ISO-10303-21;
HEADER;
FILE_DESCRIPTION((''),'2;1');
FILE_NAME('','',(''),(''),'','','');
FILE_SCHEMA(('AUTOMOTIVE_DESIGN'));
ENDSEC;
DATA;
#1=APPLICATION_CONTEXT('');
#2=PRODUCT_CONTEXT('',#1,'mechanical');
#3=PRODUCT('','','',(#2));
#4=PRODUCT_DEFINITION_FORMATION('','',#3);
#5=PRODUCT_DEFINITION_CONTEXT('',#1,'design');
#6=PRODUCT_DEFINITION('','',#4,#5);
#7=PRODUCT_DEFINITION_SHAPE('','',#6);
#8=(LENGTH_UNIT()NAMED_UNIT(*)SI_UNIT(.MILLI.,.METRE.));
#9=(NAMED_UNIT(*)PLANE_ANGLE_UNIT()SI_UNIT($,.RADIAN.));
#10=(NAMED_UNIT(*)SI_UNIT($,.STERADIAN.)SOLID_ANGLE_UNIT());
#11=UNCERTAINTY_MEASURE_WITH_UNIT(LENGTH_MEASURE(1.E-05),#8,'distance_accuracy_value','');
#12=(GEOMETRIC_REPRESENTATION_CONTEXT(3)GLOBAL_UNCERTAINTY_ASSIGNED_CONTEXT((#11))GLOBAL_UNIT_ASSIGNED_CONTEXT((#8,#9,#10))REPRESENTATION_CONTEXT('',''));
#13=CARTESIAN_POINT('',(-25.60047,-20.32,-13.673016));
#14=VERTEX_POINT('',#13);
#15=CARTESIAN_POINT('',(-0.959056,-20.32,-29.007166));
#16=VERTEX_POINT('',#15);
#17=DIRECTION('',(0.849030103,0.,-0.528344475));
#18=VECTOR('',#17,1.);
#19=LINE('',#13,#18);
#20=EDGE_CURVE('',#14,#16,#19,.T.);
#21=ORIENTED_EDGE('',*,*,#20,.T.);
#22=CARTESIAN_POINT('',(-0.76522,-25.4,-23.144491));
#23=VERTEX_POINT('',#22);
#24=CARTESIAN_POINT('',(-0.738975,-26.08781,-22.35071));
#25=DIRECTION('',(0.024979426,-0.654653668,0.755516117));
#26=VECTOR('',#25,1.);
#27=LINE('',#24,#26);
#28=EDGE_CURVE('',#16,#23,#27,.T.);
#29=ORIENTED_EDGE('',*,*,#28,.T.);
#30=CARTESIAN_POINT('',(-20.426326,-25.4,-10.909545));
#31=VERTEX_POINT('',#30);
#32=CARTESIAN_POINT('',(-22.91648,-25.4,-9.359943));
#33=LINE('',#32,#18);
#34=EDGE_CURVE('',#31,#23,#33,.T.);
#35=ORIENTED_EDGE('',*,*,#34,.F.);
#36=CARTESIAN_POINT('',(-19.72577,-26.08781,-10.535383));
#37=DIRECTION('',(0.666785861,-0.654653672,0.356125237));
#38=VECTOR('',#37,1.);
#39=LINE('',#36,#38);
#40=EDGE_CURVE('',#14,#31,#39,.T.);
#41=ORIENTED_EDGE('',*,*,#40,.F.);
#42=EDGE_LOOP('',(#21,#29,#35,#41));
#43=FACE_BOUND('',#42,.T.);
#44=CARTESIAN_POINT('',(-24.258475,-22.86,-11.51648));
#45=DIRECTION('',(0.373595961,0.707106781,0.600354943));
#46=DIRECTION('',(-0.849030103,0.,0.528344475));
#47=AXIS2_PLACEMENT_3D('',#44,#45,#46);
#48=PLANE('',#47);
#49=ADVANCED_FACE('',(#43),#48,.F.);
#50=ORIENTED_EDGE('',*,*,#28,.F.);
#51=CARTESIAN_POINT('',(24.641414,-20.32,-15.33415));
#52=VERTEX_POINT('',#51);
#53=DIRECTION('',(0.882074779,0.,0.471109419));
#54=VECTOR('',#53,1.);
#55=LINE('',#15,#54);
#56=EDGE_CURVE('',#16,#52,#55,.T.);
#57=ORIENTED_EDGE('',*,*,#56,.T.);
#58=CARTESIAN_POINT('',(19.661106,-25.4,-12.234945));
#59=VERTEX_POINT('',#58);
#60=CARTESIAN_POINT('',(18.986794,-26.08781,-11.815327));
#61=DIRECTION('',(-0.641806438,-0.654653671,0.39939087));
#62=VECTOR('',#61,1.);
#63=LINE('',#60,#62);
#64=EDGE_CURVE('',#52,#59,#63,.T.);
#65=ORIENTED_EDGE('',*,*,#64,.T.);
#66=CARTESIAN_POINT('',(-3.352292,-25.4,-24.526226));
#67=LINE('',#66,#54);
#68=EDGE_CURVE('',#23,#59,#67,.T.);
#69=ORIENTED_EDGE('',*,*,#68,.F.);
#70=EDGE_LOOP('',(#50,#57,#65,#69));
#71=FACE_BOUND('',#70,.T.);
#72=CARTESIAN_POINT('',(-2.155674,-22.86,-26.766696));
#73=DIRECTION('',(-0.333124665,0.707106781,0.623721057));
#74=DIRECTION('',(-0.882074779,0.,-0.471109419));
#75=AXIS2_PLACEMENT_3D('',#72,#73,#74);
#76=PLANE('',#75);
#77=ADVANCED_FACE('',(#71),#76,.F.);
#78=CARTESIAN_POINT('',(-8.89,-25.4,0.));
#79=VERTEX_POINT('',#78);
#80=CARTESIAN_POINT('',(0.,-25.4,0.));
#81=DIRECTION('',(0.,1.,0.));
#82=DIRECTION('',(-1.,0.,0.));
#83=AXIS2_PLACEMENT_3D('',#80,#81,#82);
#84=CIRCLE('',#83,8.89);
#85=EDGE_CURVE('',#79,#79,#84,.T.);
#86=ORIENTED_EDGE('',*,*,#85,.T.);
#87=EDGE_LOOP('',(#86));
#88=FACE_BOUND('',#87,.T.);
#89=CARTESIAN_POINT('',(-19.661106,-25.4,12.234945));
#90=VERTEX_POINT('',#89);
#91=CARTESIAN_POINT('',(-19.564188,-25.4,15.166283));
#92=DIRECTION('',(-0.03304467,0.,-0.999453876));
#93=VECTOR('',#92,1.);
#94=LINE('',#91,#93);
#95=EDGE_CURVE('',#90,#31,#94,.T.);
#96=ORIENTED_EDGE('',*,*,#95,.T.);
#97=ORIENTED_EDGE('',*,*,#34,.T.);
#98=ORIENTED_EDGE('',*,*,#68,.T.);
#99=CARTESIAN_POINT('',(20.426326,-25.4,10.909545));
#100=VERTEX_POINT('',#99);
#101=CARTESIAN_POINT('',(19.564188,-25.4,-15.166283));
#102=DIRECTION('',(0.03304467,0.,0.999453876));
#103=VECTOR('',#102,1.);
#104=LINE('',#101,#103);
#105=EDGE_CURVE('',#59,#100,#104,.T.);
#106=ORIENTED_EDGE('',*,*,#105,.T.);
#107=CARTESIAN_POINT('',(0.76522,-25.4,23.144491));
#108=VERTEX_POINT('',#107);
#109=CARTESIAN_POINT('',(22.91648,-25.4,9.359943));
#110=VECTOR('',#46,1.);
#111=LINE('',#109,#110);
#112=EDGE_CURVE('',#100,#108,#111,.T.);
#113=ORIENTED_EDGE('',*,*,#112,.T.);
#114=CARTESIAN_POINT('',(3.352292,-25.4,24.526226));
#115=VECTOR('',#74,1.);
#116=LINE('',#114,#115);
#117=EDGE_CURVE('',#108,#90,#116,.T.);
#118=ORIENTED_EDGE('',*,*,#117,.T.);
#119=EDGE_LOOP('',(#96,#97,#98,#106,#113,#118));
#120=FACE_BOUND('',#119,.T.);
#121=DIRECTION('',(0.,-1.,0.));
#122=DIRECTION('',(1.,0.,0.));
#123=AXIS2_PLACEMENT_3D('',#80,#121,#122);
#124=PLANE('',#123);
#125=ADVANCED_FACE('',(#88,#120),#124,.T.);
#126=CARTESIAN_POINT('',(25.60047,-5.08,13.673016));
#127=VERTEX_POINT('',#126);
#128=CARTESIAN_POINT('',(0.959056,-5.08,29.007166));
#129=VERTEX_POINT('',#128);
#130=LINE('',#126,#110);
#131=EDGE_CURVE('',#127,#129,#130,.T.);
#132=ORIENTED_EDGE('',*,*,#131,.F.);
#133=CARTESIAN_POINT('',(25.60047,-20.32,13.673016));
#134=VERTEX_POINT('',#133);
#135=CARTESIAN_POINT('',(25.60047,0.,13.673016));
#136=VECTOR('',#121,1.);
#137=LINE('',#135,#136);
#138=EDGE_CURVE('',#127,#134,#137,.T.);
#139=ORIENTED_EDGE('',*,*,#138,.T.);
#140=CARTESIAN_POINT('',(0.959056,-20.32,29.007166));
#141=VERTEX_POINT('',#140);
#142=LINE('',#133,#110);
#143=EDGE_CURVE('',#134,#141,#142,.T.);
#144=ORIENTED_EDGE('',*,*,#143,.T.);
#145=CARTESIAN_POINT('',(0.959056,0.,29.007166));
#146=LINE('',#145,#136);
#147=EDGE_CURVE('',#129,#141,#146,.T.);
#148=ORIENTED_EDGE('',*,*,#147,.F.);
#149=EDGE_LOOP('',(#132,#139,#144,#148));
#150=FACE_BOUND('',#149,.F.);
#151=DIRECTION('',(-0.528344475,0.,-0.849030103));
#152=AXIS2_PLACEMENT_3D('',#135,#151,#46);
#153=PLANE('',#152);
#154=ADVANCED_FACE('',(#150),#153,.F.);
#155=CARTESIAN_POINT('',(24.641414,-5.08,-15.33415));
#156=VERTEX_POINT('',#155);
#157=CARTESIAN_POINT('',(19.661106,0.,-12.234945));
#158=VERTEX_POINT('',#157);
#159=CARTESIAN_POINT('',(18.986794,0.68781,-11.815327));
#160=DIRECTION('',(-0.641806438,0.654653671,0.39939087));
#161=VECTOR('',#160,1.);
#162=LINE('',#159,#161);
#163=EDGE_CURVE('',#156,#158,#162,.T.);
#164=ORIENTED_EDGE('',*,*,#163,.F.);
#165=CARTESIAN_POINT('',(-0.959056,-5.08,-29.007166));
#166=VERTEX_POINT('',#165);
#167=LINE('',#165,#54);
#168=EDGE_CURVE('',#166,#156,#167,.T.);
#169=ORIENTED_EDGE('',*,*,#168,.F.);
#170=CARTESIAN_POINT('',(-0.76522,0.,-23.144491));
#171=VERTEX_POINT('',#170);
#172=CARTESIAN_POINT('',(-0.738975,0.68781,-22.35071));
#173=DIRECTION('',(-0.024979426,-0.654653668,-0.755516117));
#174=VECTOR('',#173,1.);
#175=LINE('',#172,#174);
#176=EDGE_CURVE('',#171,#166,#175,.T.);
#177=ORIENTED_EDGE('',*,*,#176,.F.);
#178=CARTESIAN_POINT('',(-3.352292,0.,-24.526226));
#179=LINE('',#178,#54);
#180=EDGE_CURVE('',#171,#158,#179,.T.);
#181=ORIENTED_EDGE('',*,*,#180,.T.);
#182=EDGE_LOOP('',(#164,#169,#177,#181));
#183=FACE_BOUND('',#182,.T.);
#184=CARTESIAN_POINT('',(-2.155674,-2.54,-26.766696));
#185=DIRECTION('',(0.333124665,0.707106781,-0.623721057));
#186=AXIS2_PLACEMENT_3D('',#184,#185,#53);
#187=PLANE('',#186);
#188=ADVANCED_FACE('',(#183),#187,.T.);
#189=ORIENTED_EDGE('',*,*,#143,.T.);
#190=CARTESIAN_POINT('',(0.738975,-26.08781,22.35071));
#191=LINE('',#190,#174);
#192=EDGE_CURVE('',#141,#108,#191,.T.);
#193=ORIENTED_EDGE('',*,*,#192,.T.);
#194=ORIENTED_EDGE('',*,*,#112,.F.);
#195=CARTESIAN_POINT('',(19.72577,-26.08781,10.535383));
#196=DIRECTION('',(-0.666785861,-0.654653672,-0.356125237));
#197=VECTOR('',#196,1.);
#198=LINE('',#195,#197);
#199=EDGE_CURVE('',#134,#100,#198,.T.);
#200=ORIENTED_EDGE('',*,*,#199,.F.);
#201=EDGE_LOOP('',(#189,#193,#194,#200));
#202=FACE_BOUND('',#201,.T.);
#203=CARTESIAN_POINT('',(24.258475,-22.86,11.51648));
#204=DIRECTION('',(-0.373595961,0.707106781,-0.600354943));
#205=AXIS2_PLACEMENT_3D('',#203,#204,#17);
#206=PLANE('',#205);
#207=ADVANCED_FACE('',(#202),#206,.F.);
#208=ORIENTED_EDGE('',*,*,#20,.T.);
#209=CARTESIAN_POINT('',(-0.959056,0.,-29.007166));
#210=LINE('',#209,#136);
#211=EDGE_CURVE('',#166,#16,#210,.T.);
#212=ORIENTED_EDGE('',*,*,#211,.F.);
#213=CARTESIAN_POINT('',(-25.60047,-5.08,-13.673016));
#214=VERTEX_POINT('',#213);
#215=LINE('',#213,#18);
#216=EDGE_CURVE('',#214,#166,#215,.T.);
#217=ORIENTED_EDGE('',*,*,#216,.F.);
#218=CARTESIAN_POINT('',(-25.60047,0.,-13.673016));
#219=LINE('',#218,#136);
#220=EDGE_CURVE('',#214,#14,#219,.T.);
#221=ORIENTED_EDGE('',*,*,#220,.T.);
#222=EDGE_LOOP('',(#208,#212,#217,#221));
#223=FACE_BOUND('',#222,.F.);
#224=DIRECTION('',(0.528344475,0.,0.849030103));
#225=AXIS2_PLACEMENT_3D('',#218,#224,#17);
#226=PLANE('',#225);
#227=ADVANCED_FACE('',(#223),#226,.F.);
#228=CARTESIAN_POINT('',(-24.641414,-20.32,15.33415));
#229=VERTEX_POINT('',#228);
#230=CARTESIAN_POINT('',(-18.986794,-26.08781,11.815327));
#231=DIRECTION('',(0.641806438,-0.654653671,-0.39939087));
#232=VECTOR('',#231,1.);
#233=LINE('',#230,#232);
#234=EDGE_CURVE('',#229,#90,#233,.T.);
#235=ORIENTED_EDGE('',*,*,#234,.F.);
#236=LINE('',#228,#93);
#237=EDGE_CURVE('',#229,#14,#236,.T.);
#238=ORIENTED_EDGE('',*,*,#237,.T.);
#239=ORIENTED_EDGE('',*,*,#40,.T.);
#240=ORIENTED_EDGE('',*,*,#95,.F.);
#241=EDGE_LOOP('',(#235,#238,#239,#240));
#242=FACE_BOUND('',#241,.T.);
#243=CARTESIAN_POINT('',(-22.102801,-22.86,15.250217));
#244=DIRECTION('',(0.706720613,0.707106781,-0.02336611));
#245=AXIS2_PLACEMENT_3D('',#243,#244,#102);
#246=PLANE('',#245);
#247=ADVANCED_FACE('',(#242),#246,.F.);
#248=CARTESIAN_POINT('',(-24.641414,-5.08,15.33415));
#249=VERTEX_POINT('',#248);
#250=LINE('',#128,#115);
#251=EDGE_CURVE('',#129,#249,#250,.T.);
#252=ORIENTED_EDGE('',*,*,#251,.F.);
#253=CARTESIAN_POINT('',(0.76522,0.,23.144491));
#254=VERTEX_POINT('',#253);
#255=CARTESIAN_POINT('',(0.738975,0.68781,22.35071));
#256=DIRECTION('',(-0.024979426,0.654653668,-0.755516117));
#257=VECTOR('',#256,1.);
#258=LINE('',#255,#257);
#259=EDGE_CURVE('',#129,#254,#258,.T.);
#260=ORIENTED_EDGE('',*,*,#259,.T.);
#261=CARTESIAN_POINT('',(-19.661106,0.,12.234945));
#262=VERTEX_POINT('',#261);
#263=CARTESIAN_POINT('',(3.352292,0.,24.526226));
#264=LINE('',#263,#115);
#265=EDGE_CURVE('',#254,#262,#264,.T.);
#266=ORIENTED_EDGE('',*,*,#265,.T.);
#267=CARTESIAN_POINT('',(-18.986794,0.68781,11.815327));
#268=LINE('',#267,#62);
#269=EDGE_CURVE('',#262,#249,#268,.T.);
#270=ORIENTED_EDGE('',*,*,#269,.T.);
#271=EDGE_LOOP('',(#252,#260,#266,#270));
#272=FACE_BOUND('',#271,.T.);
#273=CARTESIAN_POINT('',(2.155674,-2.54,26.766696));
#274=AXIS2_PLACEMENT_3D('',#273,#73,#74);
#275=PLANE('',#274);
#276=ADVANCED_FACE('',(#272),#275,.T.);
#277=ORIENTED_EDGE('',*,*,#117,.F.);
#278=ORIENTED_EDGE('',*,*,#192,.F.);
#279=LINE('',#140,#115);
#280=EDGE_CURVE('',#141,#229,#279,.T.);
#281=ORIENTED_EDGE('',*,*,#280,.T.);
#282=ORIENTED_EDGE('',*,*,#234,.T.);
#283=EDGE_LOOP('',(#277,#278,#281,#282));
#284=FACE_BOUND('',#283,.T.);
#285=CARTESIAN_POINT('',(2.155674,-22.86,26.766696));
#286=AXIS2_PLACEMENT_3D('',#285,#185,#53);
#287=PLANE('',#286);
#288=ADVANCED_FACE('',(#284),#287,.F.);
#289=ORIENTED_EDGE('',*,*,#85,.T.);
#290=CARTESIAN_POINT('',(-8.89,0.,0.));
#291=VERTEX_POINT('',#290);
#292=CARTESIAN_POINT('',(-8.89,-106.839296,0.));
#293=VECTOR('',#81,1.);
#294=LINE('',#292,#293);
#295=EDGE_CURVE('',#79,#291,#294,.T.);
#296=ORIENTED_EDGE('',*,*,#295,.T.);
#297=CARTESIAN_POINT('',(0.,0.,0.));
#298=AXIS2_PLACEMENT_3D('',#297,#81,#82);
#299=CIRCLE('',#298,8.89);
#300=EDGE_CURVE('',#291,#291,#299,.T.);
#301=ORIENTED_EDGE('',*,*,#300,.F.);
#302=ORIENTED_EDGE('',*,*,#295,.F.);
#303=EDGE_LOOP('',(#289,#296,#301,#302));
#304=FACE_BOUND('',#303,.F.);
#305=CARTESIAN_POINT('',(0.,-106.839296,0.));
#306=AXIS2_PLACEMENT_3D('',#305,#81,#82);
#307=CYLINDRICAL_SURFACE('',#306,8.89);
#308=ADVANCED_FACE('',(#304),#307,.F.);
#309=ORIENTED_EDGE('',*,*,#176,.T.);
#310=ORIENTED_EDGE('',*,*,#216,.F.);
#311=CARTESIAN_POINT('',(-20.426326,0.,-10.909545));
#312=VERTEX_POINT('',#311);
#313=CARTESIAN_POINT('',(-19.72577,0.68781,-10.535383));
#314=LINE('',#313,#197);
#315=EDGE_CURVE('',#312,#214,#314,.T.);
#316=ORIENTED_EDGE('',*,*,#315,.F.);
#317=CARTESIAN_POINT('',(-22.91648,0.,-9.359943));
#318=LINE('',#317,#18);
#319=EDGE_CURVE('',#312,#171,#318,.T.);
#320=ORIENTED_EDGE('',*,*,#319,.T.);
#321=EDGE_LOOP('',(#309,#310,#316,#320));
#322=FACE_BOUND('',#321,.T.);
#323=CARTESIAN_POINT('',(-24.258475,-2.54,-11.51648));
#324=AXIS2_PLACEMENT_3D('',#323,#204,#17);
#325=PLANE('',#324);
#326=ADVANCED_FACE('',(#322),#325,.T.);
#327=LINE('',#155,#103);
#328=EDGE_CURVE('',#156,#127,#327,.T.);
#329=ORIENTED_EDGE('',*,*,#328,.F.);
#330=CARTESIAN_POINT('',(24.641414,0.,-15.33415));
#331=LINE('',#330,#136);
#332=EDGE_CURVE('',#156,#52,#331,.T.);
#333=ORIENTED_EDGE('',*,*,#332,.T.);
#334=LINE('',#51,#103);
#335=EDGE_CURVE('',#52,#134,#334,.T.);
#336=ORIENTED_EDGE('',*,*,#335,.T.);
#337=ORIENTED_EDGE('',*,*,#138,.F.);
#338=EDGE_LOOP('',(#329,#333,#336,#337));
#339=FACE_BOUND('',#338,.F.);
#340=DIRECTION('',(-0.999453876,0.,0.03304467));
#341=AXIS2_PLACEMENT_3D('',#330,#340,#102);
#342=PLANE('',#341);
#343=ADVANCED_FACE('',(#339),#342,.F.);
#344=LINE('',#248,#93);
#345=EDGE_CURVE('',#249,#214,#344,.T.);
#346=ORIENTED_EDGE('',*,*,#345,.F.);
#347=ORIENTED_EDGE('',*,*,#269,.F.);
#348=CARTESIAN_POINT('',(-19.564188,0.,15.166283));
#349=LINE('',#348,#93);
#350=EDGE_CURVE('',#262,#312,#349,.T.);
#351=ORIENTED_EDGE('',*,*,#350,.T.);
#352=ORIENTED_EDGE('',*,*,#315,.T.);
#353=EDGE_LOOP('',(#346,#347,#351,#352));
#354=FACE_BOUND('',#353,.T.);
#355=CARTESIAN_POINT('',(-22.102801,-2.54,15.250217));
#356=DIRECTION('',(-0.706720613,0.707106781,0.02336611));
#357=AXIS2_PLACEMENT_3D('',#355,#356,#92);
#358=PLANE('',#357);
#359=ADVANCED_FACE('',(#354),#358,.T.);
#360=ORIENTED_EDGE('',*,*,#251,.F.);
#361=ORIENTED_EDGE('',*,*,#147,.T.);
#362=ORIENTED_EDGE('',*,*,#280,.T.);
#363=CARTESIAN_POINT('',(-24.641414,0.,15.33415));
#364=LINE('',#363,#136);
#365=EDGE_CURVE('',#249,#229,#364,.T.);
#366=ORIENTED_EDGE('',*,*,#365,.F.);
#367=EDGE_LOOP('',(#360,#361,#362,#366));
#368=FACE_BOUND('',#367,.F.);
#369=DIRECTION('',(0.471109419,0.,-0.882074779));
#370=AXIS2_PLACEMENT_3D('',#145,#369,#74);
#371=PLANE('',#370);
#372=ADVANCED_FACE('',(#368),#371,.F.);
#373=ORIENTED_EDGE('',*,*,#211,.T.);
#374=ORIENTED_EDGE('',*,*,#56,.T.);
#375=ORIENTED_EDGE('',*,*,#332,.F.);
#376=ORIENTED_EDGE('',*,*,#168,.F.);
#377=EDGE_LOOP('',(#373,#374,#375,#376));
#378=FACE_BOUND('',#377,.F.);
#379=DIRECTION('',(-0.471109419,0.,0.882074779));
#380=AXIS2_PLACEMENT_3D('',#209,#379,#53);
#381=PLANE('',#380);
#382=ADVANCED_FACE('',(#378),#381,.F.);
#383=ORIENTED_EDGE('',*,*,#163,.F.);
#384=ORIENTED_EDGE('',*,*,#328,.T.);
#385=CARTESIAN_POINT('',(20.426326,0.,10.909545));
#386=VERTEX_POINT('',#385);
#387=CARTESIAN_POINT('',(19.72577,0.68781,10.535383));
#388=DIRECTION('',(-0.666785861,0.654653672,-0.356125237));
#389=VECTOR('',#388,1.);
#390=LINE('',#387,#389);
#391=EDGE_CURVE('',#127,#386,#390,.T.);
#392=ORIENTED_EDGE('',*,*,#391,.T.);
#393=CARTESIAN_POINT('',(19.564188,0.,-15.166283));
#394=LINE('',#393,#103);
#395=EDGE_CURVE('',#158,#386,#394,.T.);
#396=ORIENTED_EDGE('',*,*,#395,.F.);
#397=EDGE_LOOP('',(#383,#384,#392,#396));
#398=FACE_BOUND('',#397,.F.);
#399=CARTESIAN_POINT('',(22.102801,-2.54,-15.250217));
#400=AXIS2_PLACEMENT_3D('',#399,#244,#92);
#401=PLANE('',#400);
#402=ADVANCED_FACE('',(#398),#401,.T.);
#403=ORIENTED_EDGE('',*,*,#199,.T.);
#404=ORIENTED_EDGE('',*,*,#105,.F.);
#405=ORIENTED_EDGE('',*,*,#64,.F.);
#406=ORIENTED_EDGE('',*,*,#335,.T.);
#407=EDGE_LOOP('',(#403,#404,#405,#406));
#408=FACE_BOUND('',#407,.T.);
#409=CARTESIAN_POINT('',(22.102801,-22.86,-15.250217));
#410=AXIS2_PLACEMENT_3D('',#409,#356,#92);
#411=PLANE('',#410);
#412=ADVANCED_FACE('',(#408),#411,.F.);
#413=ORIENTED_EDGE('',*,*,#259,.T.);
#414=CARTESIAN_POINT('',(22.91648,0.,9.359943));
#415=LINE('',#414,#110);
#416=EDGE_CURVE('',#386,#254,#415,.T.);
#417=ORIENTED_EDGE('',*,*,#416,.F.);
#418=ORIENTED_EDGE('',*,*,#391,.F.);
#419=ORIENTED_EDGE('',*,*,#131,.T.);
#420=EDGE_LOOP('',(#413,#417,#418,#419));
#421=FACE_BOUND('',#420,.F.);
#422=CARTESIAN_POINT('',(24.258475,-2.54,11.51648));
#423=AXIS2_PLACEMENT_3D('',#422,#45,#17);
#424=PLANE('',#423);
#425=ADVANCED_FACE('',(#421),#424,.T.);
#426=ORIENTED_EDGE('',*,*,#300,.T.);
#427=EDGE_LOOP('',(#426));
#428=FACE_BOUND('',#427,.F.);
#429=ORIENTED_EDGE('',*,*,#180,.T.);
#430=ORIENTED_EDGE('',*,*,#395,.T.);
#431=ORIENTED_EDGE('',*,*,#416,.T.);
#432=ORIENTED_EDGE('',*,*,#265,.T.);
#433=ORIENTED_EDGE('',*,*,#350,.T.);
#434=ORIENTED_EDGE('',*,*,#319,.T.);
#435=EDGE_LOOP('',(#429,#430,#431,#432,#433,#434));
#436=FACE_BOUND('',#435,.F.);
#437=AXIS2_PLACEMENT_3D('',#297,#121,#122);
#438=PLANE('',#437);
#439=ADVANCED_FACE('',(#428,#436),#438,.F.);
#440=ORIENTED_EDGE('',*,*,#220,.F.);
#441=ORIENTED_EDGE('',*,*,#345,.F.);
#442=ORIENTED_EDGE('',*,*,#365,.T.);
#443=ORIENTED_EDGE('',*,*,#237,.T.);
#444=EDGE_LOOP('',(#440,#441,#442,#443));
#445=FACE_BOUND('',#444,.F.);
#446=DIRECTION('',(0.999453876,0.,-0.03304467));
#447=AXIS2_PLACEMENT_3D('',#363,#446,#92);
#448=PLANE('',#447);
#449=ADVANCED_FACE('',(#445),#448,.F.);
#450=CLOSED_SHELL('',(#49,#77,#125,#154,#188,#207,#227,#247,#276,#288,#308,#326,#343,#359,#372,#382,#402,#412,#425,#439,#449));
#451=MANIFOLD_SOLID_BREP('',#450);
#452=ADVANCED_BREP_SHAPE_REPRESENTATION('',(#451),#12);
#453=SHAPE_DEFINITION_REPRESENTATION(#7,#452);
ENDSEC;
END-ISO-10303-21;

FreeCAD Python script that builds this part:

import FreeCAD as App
import Part
import Sketcher
Q = App.Units.Quantity


def edges_at(feature, points):
    """Names of the edges that pass closest to the given points."""
    edges = feature.Shape.Edges
    near = lambda p: min(range(len(edges)), key=lambda i: edges[i].distToShape(Part.Vertex(*p))[0])
    return sorted({f"Edge{near(p) + 1}" for p in points})


def add_polygon(sketch, points):
    """Adds a closed chain of lines whose ends are joined by coincident constraints."""
    first, n = sketch.GeometryCount, len(points)
    for a, b in zip(points, points[1:] + points[:1]):
        sketch.addGeometry(Part.LineSegment(App.Vector(*a, 0), App.Vector(*b, 0)), False)
    for i in range(n):
        sketch.addConstraint(Sketcher.Constraint("Coincident", first + i, 2, first + (i + 1) % n, 1))

doc = App.newDocument("Part")
body = doc.addObject("PartDesign::Body", "Body")

# Sketch on XZ plane
sketch1 = doc.addObject("Sketcher::SketchObject", "Sketch")
body.addObject(sketch1)
sketch1.AttachmentSupport = (doc.XZ_Plane, [""])
sketch1.MapMode = "FlatFace"
add_polygon(sketch1, [(26, 14), (1, 29), (-25, 15), (-26, -14), (-1, -29), (25, -15)])  # lines 0-5
sketch1.addConstraint([
    Sketcher.Constraint("Symmetric", 0, 2, 3, 2, -1, 1),
    Sketcher.Constraint("Symmetric", 1, 2, 4, 2, -1, 1),
    Sketcher.Constraint("Symmetric", 2, 2, 5, 2, -1, 1),
    Sketcher.Constraint("Equal", 0, 1),
    Sketcher.Constraint("Equal", 1, 2),
    Sketcher.Constraint("DistanceY", 4, 2, 1, 2, Q("30.6683 mm")),
    Sketcher.Constraint("DistanceX", 2, 2, -1, 1, Q("25.60047 mm")),
    Sketcher.Constraint("DistanceX", 1, 2, 0, 2, Q("25.60047 mm")),
    Sketcher.Constraint("DistanceY", 3, 2, 2, 2, Q("15.33415 mm")),
])
pad1 = doc.addObject("PartDesign::Pad", "Pad")
body.addObject(pad1)
pad1.Profile = sketch1
pad1.Length = Q("1 in")
doc.recompute()

chamfer = doc.addObject("PartDesign::Chamfer", "Chamfer")
body.addObject(chamfer)
chamfer.Base = (pad1, edges_at(pad1, [
    (13.28, -25.4, 21.34),
    (25.121, -25.4, -0.831),
    (11.841, -25.4, -22.171),
    (-13.28, -25.4, -21.34),
    (-25.121, -25.4, 0.831),
    (-11.841, -25.4, 22.171),
]))
chamfer.Size = Q("0.2 in")
doc.recompute()

chamfer2 = doc.addObject("PartDesign::Chamfer", "Chamfer001")
body.addObject(chamfer2)
chamfer2.Base = (chamfer, edges_at(chamfer, [
    (25.121, 0, -0.831),
    (13.28, 0, 21.34),
    (11.841, 0, -22.171),
    (-11.841, 0, 22.171),
    (-25.121, 0, 0.831),
    (-13.28, 0, -21.34),
]))
chamfer2.Size = Q("0.2 in")

# Sketch on XZ plane
sketch2 = doc.addObject("Sketcher::SketchObject", "Sketch001")
body.addObject(sketch2)
sketch2.AttachmentSupport = (doc.XZ_Plane, [""])
sketch2.MapMode = "FlatFace"
sketch2.AttachmentOffset = App.Placement(App.Vector(0, 0, 1 * 25.4), App.Rotation())
sketch2.addGeometry(Part.Circle(App.Vector(0, 0, 0), App.Vector(0, 0, 1), 9), False)
sketch2.addConstraint([
    Sketcher.Constraint("Coincident", 0, 3, -1, 1),
    Sketcher.Constraint("Diameter", 0, Q("0.7 in")),
])
doc.recompute()
hole = doc.addObject("PartDesign::Hole", "Hole")
body.addObject(hole)
hole.Profile = sketch2
hole.ThreadType = "None"
hole.Diameter = Q("0.7 in")
hole.DepthType = "ThroughAll"

doc.recompute()
